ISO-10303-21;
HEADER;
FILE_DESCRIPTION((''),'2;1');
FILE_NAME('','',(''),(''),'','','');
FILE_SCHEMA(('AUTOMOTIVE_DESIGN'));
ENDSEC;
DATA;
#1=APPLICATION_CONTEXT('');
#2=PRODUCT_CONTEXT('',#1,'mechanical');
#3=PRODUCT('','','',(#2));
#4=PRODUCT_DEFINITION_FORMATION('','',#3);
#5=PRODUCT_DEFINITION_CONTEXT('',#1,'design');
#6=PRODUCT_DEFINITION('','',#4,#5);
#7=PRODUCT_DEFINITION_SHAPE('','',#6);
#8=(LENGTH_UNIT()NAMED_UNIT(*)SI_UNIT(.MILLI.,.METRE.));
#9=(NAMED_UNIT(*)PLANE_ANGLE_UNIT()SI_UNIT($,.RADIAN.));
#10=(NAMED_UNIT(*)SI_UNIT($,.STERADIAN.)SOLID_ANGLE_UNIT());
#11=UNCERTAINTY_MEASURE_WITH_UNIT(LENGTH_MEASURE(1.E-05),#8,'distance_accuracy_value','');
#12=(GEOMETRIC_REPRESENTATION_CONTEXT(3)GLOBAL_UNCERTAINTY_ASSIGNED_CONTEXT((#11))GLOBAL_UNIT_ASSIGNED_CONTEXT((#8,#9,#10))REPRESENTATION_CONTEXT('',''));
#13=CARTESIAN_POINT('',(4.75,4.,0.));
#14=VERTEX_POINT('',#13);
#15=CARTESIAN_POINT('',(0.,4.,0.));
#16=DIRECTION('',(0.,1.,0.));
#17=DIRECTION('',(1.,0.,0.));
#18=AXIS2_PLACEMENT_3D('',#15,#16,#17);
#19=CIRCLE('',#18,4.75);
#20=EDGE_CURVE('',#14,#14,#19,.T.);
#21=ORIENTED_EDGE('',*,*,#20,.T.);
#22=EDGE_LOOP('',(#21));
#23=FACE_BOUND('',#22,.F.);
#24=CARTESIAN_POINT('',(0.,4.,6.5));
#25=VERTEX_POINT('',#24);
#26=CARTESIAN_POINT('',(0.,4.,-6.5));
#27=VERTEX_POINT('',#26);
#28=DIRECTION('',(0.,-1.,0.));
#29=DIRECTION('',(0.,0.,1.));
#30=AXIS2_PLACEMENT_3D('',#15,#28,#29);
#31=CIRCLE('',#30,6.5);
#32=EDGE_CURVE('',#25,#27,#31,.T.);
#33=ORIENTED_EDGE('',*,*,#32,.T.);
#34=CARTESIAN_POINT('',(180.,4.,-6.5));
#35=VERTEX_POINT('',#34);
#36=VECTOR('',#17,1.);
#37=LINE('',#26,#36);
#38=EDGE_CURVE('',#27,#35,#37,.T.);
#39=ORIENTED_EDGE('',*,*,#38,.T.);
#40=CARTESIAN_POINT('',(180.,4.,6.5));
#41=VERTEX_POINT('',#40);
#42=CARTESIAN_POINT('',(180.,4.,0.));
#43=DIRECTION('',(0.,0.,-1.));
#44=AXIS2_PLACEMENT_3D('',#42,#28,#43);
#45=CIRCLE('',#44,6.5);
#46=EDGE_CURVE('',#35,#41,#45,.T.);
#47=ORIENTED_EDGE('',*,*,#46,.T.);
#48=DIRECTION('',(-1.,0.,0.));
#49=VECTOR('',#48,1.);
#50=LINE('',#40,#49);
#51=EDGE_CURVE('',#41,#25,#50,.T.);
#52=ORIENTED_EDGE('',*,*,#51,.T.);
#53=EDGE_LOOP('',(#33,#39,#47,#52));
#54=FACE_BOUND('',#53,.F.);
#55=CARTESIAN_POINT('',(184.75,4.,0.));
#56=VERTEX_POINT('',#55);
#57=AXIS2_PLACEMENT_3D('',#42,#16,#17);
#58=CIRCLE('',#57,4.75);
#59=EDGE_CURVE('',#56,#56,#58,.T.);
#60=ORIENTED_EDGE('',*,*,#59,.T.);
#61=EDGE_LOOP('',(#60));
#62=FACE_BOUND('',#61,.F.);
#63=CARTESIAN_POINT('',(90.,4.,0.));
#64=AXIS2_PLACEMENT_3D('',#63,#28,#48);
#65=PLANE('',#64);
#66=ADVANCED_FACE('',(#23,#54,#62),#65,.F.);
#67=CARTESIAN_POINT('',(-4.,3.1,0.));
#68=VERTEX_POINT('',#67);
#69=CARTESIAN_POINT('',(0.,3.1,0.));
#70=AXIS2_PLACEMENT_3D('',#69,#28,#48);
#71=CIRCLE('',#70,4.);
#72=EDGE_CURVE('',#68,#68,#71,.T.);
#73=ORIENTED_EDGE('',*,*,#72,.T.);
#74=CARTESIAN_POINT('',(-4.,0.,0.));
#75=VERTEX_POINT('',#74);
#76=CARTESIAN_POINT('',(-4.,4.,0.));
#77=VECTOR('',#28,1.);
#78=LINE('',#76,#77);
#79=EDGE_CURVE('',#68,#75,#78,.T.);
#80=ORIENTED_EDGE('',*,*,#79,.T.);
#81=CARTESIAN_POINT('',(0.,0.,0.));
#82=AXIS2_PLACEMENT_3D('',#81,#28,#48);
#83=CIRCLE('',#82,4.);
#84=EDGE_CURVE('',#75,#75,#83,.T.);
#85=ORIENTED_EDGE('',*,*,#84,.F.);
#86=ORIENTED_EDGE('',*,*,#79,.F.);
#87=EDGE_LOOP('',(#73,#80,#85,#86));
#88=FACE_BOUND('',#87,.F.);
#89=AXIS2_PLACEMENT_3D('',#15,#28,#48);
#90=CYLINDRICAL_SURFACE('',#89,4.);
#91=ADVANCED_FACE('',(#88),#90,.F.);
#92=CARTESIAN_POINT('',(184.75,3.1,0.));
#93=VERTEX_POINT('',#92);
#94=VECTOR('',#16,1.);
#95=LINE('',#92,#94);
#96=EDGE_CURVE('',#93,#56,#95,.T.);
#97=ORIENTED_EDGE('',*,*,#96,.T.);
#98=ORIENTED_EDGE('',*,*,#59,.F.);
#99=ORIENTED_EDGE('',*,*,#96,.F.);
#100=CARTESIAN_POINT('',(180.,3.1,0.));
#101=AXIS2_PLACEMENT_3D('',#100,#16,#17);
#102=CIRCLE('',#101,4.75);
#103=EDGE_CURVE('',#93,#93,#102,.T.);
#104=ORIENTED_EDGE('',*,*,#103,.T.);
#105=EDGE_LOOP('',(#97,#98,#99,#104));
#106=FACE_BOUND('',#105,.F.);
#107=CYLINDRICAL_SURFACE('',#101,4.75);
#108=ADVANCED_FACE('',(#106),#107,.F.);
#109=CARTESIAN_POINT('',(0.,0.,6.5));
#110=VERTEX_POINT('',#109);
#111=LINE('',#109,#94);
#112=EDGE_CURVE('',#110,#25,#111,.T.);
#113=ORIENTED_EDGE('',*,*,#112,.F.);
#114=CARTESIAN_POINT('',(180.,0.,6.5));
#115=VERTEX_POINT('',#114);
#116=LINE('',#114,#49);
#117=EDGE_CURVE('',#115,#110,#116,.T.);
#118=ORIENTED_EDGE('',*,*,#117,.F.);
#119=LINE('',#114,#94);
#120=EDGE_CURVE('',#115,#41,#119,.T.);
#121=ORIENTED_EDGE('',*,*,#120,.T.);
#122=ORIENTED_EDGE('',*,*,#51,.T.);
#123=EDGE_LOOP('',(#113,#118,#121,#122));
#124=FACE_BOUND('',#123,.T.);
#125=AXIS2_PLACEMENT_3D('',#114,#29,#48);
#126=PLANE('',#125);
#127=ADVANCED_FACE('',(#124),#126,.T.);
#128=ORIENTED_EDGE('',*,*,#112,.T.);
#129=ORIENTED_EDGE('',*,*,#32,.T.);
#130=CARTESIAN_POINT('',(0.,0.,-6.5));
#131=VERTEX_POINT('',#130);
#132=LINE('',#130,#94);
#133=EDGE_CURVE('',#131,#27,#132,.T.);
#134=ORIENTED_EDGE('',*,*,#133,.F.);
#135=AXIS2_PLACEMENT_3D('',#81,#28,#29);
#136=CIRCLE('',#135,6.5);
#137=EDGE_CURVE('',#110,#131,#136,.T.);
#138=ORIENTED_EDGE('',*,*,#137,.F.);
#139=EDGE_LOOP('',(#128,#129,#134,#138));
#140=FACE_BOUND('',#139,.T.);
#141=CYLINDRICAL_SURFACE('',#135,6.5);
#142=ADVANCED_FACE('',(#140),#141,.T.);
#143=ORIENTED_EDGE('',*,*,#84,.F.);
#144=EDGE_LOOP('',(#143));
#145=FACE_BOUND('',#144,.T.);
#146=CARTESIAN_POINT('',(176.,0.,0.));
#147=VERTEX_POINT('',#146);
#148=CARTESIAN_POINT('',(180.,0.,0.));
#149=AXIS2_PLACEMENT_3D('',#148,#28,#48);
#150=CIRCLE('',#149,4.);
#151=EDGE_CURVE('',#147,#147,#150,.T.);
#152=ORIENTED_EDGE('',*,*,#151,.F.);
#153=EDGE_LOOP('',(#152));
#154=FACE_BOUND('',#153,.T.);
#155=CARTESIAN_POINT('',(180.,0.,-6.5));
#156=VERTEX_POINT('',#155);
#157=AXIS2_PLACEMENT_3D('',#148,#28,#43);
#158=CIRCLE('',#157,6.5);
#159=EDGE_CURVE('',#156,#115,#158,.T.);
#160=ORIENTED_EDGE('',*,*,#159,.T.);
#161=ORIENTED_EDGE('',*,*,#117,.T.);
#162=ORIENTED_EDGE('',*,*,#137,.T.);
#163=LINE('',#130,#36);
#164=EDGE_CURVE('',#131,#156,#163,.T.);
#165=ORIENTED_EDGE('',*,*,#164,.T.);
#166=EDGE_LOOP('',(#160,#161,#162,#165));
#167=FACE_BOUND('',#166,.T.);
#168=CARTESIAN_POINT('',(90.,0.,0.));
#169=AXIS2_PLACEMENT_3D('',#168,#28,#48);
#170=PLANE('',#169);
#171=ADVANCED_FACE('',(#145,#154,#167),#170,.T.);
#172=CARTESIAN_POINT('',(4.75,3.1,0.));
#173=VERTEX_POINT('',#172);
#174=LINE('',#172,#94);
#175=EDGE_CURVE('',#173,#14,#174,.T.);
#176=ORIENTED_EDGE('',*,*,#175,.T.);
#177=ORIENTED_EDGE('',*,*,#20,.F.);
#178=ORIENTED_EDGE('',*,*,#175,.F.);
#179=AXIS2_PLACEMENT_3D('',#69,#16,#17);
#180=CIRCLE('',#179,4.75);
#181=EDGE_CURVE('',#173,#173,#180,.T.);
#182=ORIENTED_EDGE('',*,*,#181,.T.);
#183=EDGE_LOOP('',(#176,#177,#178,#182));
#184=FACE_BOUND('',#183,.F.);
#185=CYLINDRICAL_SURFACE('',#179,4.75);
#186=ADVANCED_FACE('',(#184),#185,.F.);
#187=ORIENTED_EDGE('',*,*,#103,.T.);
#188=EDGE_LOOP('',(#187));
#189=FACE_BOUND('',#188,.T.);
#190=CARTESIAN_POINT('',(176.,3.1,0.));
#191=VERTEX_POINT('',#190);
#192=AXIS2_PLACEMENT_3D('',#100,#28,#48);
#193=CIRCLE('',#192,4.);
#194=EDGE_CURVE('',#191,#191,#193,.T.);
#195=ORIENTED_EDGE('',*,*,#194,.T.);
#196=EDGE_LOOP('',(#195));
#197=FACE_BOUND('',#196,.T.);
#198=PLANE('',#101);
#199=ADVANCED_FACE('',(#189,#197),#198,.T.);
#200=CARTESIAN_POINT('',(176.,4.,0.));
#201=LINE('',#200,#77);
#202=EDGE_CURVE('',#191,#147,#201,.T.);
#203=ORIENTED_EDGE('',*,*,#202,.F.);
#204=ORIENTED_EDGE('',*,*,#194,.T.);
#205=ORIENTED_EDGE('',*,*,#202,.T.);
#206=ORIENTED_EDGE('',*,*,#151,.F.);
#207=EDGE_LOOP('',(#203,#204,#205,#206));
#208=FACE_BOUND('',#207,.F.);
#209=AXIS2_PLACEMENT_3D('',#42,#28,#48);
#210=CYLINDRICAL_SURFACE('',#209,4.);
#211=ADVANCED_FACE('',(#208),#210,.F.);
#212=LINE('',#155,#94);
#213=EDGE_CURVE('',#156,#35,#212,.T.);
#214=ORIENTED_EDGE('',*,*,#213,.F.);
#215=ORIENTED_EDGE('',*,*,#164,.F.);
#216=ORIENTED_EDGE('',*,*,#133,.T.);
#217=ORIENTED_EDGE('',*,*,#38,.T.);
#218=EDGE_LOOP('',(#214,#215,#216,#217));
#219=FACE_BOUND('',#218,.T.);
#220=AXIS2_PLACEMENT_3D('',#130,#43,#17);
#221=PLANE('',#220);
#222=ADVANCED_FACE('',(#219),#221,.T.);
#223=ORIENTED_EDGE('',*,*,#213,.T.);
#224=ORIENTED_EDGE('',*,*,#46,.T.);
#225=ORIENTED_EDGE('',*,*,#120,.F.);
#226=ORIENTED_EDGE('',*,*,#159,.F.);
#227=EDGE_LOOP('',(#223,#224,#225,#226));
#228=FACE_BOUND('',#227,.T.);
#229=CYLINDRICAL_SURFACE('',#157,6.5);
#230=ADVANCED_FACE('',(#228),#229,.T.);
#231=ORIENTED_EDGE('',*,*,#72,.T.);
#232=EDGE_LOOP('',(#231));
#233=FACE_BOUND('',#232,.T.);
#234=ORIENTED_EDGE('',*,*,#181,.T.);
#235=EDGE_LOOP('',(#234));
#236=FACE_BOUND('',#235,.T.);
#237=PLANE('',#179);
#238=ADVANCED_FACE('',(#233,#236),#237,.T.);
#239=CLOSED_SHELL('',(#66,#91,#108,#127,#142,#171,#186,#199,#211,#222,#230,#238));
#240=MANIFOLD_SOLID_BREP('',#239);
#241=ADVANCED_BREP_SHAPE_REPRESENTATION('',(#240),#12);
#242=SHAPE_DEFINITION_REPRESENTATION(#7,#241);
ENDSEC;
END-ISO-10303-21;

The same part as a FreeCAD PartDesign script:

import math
import FreeCAD as App
import Part
import Sketcher

doc = App.newDocument("Part")
body = doc.addObject("PartDesign::Body", "Body")

# Sketch on XZ plane
sketch1 = body.newObject("Sketcher::SketchObject", "Sketch")
sketch1.AttachmentSupport = (doc.getObject("XZ_Plane"), [""])
sketch1.MapMode = "FlatFace"
sketch1.addGeometry([
    Part.LineSegment(App.Vector(180, -6, 0), App.Vector(0, -6, 0)),
    Part.ArcOfCircle(Part.Circle(App.Vector(0, 0, 0), App.Vector(0, 0, 1), 6), math.radians(90), math.radians(270)),
    Part.LineSegment(App.Vector(0, 6, 0), App.Vector(180, 6, 0)),
    Part.ArcOfCircle(Part.Circle(App.Vector(180, 0, 0), App.Vector(0, 0, 1), 6), math.radians(-90), math.radians(90)),
], False)
sketch1.addConstraint([
    Sketcher.Constraint("Tangent", 0, 2, 1, 2),
    Sketcher.Constraint("Tangent", 1, 1, 2, 1),
    Sketcher.Constraint("Tangent", 2, 2, 3, 2),
    Sketcher.Constraint("Tangent", 3, 1, 0, 1),
    Sketcher.Constraint("Horizontal", 0),
    Sketcher.Constraint("Horizontal", 2),
    Sketcher.Constraint("Coincident", 1, 3, -1, 1),
    Sketcher.Constraint("Radius", 1, 6.5),
    Sketcher.Constraint("DistanceX", 0, 2, 0, 1, 180.0),
])
pad1 = body.newObject("PartDesign::Pad", "Pad")
pad1.Profile = sketch1
pad1.Length = 4
pad1.Reversed = True

# Sketch on XZ plane
sketch2 = body.newObject("Sketcher::SketchObject", "Sketch001")
sketch2.AttachmentSupport = (doc.getObject("XZ_Plane"), [""])
sketch2.MapMode = "FlatFace"
sketch2.AttachmentOffset = App.Placement(App.Vector(0, 0, -4), App.Rotation())
sketch2.addGeometry([
    Part.Circle(App.Vector(180, 0, 0), App.Vector(0, 0, 1), 4),
    Part.Circle(App.Vector(0, 0, 0), App.Vector(0, 0, 1), 4),
], False)
sketch2.addConstraint([
    Sketcher.Constraint("Coincident", 1, 3, -1, 1),
    Sketcher.Constraint("Equal", 0, 1),
    Sketcher.Constraint("PointOnObject", 0, 3, -1),
    Sketcher.Constraint("Diameter", 0, 8.0),
    Sketcher.Constraint("DistanceX", -1, 1, 0, 3, 180.0),
])
doc.recompute()
hole = body.newObject("PartDesign::Hole", "Hole")
hole.Profile = sketch2
hole.ThreadType = "None"
hole.Diameter = 8
hole.DepthType = "ThroughAll"
hole.HoleCutType = "Counterbore"
hole.HoleCutDiameter = 9.5
hole.HoleCutDepth = 0.9
hole.Reversed = True

doc.recompute()
